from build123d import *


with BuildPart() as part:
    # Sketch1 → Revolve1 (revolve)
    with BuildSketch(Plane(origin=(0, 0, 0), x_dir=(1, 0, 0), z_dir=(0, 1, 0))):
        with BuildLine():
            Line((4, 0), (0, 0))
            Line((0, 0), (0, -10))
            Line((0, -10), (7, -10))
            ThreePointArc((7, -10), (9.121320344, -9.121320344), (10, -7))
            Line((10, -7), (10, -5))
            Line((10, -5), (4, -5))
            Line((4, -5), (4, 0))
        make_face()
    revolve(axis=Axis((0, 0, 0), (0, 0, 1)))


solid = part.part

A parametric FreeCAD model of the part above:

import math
import FreeCAD as App
import Part
import Sketcher

doc = App.newDocument("Part")
body = doc.addObject("PartDesign::Body", "Body")

# Sketch on XZ plane
sketch1 = body.newObject("Sketcher::SketchObject", "Sketch")
sketch1.AttachmentSupport = (doc.getObject("XZ_Plane"), [""])
sketch1.MapMode = "FlatFace"
sketch1.addGeometry([
    Part.LineSegment(App.Vector(4, 0, 0), App.Vector(0, 0, 0)),  # 0
    Part.LineSegment(App.Vector(0, 0, 0), App.Vector(0, 10, 0)),  # 1
    Part.LineSegment(App.Vector(0, 10, 0), App.Vector(7, 10, 0)),  # 2
    Part.ArcOfCircle(Part.Circle(App.Vector(7, 7, 0), App.Vector(0, 0, 1), 3), math.radians(0), math.radians(90)),  # 3
    Part.LineSegment(App.Vector(10, 7, 0), App.Vector(10, 5, 0)),  # 4
    Part.LineSegment(App.Vector(10, 5, 0), App.Vector(4, 5, 0)),  # 5
    Part.LineSegment(App.Vector(4, 5, 0), App.Vector(4, 0, 0)),  # 6
], False)
sketch1.addConstraint([
    Sketcher.Constraint("Coincident", 0, 2, 1, 1),
    Sketcher.Constraint("Coincident", 1, 2, 2, 1),
    Sketcher.Constraint("Tangent", 2, 2, 3, 2),
    Sketcher.Constraint("Tangent", 3, 1, 4, 1),
    Sketcher.Constraint("Coincident", 4, 2, 5, 1),
    Sketcher.Constraint("Coincident", 5, 2, 6, 1),
    Sketcher.Constraint("Coincident", 6, 2, 0, 1),
    Sketcher.Constraint("Horizontal", 0),
    Sketcher.Constraint("Vertical", 1),
    Sketcher.Constraint("Horizontal", 2),
    Sketcher.Constraint("Vertical", 4),
    Sketcher.Constraint("Horizontal", 5),
    Sketcher.Constraint("Vertical", 6),
    Sketcher.Constraint("Coincident", 0, 2, -1, 1),
    Sketcher.Constraint("Radius", 3, 3.0),
    Sketcher.Constraint("DistanceX", 0, 2, 0, 1, 4.0),
    Sketcher.Constraint("DistanceX", 2, 1, 2, 2, 7.0),
    Sketcher.Constraint("DistanceY", 1, 1, 1, 2, 10.0),
    Sketcher.Constraint("DistanceY", 4, 2, 4, 1, 2.0),
])
revolution = body.newObject("PartDesign::Revolution", "Revolution")
revolution.Profile = sketch1
revolution.ReferenceAxis = (sketch1, ["V_Axis"])
revolution.Angle = 360

doc.recompute()
